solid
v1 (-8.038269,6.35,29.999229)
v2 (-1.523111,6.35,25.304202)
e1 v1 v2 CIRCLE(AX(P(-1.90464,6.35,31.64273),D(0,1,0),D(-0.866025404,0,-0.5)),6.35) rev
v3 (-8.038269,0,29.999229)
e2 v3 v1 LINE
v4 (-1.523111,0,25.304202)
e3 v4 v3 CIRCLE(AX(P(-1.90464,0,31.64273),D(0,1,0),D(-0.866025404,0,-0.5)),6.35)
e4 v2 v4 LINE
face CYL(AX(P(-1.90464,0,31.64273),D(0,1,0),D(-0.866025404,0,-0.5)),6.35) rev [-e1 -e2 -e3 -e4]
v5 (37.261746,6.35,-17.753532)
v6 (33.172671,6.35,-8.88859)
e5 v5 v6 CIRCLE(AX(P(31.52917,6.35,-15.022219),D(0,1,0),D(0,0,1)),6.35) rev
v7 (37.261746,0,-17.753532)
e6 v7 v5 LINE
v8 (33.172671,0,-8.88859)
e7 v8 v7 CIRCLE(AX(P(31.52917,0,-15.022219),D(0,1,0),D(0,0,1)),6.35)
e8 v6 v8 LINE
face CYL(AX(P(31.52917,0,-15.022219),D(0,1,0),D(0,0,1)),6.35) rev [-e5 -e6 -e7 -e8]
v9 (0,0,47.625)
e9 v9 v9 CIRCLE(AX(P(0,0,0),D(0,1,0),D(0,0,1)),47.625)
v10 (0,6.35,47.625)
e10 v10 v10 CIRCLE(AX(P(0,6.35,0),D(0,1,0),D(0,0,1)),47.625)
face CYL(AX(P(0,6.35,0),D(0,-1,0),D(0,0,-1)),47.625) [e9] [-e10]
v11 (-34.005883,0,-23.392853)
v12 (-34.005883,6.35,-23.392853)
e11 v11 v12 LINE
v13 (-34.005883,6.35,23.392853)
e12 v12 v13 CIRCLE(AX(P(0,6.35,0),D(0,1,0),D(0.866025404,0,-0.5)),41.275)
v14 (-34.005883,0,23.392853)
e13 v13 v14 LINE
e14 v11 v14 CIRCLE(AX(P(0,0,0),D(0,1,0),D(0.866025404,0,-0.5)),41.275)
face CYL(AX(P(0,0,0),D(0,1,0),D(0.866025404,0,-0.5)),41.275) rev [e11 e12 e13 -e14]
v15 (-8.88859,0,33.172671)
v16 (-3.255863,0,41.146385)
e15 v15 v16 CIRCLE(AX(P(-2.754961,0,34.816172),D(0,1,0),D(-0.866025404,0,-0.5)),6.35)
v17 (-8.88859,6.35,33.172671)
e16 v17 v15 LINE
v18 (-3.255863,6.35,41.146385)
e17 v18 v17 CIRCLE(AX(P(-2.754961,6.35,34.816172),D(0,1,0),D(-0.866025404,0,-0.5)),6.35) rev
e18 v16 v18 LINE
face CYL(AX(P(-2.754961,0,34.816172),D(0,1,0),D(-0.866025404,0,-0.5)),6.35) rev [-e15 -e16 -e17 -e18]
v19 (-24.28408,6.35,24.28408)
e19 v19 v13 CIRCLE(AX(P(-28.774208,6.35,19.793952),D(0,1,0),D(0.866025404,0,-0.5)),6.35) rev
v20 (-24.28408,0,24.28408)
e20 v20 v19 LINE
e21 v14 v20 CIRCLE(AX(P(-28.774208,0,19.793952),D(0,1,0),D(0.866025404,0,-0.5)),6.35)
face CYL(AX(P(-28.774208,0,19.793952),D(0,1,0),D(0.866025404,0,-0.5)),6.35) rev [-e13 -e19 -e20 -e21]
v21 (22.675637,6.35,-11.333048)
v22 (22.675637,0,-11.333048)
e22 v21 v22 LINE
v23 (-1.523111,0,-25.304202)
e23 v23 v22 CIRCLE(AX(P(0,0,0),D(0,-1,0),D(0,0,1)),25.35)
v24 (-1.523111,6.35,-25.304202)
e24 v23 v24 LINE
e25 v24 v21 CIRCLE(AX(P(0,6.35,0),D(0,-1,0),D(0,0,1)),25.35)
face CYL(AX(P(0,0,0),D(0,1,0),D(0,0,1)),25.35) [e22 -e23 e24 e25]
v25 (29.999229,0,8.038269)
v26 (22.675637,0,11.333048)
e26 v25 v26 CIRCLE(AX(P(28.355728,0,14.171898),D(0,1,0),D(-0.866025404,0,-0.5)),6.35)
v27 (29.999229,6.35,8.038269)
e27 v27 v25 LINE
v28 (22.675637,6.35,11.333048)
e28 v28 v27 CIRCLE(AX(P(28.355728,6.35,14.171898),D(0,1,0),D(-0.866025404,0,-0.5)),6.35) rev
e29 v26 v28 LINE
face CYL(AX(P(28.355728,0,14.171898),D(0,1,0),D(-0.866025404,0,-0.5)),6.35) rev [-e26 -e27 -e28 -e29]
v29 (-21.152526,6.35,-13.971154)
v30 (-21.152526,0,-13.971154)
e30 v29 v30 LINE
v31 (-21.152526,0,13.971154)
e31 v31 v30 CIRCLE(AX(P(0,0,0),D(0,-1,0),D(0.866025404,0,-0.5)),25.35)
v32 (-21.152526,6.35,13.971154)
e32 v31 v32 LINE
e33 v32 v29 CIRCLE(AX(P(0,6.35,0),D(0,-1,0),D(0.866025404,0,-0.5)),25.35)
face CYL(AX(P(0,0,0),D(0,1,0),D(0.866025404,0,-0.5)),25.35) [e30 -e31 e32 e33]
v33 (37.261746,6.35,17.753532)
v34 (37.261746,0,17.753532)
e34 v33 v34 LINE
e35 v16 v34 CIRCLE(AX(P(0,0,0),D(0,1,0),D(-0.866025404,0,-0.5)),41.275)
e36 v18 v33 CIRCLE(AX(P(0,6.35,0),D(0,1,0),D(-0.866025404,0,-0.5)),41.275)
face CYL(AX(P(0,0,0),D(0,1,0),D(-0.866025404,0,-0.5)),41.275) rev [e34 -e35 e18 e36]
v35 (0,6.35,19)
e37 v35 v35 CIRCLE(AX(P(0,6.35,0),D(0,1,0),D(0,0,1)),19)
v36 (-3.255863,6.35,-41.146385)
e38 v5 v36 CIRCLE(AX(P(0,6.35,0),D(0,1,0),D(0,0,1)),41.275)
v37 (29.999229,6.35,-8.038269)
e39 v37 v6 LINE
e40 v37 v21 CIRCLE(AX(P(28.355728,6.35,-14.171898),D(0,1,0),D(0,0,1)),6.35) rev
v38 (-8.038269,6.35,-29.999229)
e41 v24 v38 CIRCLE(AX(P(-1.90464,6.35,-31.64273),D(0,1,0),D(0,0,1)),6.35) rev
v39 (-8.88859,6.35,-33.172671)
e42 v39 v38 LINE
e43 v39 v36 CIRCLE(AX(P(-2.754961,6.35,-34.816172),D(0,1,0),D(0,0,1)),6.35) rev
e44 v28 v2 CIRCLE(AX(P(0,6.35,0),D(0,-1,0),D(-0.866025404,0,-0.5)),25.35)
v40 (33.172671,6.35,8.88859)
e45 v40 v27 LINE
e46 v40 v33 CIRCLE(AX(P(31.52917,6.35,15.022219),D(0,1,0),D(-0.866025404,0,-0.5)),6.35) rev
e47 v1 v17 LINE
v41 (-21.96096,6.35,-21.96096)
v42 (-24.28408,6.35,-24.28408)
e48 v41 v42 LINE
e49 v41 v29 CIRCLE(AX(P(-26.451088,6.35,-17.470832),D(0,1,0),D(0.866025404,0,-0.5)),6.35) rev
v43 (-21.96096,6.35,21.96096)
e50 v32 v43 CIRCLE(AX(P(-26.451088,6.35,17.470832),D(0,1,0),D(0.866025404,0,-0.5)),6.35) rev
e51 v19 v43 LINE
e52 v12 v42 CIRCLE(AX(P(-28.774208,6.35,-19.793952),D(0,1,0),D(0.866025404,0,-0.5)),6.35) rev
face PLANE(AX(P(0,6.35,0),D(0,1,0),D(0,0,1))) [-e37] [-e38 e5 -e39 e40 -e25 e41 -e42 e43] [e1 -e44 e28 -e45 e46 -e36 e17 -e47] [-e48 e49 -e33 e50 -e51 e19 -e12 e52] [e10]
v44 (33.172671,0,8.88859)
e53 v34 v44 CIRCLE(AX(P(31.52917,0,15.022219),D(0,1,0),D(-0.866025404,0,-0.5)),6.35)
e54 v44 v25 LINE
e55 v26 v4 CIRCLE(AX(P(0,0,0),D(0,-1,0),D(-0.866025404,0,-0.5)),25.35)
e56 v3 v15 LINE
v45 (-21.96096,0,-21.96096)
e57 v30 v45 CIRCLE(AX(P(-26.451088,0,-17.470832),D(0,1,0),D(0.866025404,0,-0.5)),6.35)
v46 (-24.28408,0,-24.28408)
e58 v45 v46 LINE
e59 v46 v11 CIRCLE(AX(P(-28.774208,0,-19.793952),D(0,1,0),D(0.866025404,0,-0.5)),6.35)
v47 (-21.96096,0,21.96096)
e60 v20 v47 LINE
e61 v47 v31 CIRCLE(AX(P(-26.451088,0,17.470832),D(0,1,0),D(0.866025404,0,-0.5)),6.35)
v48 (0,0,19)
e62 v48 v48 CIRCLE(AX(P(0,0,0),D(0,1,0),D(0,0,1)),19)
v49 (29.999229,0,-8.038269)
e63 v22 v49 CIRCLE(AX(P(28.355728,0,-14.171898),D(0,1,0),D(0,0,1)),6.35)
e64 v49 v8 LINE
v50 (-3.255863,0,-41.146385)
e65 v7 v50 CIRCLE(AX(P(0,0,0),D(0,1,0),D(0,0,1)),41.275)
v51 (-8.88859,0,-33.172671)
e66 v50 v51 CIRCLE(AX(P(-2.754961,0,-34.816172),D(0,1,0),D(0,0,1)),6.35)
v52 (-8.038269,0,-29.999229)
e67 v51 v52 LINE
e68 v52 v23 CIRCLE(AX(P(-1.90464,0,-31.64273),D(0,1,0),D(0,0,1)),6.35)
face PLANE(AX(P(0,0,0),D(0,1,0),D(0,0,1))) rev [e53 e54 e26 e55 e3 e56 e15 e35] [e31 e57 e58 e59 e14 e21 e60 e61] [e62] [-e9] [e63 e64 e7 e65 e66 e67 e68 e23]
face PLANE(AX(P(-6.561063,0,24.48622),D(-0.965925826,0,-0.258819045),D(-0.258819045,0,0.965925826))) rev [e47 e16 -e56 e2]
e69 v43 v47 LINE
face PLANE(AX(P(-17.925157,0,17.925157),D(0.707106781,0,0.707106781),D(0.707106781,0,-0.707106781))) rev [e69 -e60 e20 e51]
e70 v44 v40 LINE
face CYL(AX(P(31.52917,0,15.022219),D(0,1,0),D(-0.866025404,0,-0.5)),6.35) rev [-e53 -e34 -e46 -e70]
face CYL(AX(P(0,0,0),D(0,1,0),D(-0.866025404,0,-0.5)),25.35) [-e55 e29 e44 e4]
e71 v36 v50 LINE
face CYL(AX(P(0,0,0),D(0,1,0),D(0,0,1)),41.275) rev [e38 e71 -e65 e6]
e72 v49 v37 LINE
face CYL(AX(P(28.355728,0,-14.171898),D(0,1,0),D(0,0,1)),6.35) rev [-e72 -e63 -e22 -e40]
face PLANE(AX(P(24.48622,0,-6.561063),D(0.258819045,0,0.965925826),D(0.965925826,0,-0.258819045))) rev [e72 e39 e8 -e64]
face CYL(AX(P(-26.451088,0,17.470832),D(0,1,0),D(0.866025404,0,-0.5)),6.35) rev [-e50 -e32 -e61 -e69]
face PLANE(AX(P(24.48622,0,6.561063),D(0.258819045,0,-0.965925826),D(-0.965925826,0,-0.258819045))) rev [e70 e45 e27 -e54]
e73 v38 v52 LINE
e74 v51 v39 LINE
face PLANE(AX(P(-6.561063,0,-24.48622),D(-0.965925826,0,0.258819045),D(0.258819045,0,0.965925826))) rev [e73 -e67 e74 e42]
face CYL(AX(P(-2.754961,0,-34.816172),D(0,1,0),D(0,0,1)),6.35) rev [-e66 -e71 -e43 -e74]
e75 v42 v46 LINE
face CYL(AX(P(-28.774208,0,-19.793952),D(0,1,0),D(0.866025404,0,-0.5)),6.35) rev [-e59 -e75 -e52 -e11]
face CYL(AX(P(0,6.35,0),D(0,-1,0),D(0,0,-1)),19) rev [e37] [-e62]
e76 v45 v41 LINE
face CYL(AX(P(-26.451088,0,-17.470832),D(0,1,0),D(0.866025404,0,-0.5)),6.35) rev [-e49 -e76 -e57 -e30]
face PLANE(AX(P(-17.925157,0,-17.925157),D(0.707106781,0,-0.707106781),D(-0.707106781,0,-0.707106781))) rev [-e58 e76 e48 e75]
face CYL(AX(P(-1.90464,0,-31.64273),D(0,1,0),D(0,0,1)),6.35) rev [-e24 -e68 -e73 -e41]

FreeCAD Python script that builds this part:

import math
import FreeCAD as App
import Part
import Sketcher

V = App.Vector
Q = App.Units.Quantity


def edges_at(feature, points):
    """Names of the edges that pass closest to the given points."""
    edges = feature.Shape.Edges
    near = lambda p: min(range(len(edges)), key=lambda i: edges[i].distToShape(Part.Vertex(*p))[0])
    return sorted({f"Edge{near(p) + 1}" for p in points})

doc = App.newDocument("Part")
body = doc.addObject("PartDesign::Body", "Body")

# Sketch on XZ plane
sketch1 = body.newObject("Sketcher::SketchObject", "Sketch")
sketch1.AttachmentSupport = (doc.getObject("XZ_Plane"), [""])
sketch1.MapMode = "FlatFace"
sketch1.addGeometry(Part.Circle(V(0, 0, 0), V(0, 0, 1), 48), False)
sketch1.addGeometry(Part.Circle(V(0, 0, 0), V(0, 0, 1), 19), False)
sketch1.addConstraint(Sketcher.Constraint("Coincident", 0, 3, -1, 1))
sketch1.addConstraint(Sketcher.Constraint("Coincident", 1, 3, -1, 1))
sketch1.addConstraint(Sketcher.Constraint("Diameter", 0, Q("3.75 in")))
sketch1.addConstraint(Sketcher.Constraint("Diameter", 1, Q("38 mm")))
pad1 = body.newObject("PartDesign::Pad", "Pad")
pad1.Profile = sketch1
pad1.Length = Q("0.25 in")
pad1.Reversed = True

# Sketch on XZ plane
sketch2 = body.newObject("Sketcher::SketchObject", "Sketch001")
sketch2.AttachmentSupport = (doc.getObject("XZ_Plane"), [""])
sketch2.MapMode = "FlatFace"
sketch2.AttachmentOffset = App.Placement(V(0, 0, -0.25 * 25.4), App.Rotation())
sketch2.addGeometry(Part.LineSegment(V(24, -7, 0), V(40, -11, 0)), False)
sketch2.addGeometry(Part.ArcOfCircle(Part.Circle(V(0, 0, 0), V(0, 0, 1), 41), math.radians(-105), math.radians(-15)), False)
sketch2.addGeometry(Part.LineSegment(V(-11, -40, 0), V(-7, -24, 0)), False)
sketch2.addGeometry(Part.ArcOfCircle(Part.Circle(V(0, 0, 0), V(0, 0, 1), 25), math.radians(-105), math.radians(-15)), False)
sketch2.addConstraint(Sketcher.Constraint("Coincident", 0, 2, 1, 2))
sketch2.addConstraint(Sketcher.Constraint("Coincident", 1, 1, 2, 1))
sketch2.addConstraint(Sketcher.Constraint("Coincident", 2, 2, 3, 1))
sketch2.addConstraint(Sketcher.Constraint("Coincident", 3, 2, 0, 1))
sketch2.addConstraint(Sketcher.Constraint("Coincident", 1, 3, -1, 1))
sketch2.addConstraint(Sketcher.Constraint("Coincident", 3, 3, -1, 1))
sketch2.addConstraint(Sketcher.Constraint("Perpendicular", 0, 2))
sketch2.addConstraint(Sketcher.Constraint("Angle", 0, Q("-15 deg")))
sketch2.addConstraint(Sketcher.Constraint("Radius", 1, Q("1.625 in")))
sketch2.addConstraint(Sketcher.Constraint("Radius", 3, Q("25.35 mm")))
sketch2.addConstraint(Sketcher.Constraint("DistanceX", -1, 1, 0, 2, Q("39.868588 mm")))
sketch2.addConstraint(Sketcher.Constraint("DistanceY", 1, 1, -1, 1, Q("39.868588 mm")))
pocket1 = body.newObject("PartDesign::Pocket", "Pocket")
pocket1.Profile = sketch2
pocket1.Type = "ThroughAll"
pocket1.Reversed = True
doc.recompute()

fillet = body.newObject("PartDesign::Fillet", "Fillet")
fillet.Base = (pocket1, edges_at(pocket1, [
    (24.486, 3.175, -6.561),
    (-6.561, 3.175, -24.486),
    (-10.683, 3.175, -39.869),
    (39.869, 3.175, -10.683),
]))
fillet.Radius = Q("0.25 in")
doc.recompute()

polarpattern = body.newObject("PartDesign::PolarPattern", "PolarPattern")
polarpattern.Originals = [pocket1]
polarpattern.Axis = (doc.getObject("Y_Axis"), [""])
polarpattern.Angle = 360
polarpattern.Occurrences = 3
body.Tip = polarpattern
doc.recompute()

fillet2 = body.newObject("PartDesign::Fillet", "Fillet001")
fillet2.Base = (polarpattern, edges_at(polarpattern, [
    (-17.925, 3.175, -17.925),
    (-17.925, 3.175, 17.925),
    (-29.186, 3.175, 29.186),
    (-29.186, 3.175, -29.186),
    (-6.561, 3.175, 24.486),
    (24.486, 3.175, 6.561),
    (39.869, 3.175, 10.683),
    (-10.683, 3.175, 39.869),
]))
fillet2.Radius = Q("0.25 in")

doc.recompute()
